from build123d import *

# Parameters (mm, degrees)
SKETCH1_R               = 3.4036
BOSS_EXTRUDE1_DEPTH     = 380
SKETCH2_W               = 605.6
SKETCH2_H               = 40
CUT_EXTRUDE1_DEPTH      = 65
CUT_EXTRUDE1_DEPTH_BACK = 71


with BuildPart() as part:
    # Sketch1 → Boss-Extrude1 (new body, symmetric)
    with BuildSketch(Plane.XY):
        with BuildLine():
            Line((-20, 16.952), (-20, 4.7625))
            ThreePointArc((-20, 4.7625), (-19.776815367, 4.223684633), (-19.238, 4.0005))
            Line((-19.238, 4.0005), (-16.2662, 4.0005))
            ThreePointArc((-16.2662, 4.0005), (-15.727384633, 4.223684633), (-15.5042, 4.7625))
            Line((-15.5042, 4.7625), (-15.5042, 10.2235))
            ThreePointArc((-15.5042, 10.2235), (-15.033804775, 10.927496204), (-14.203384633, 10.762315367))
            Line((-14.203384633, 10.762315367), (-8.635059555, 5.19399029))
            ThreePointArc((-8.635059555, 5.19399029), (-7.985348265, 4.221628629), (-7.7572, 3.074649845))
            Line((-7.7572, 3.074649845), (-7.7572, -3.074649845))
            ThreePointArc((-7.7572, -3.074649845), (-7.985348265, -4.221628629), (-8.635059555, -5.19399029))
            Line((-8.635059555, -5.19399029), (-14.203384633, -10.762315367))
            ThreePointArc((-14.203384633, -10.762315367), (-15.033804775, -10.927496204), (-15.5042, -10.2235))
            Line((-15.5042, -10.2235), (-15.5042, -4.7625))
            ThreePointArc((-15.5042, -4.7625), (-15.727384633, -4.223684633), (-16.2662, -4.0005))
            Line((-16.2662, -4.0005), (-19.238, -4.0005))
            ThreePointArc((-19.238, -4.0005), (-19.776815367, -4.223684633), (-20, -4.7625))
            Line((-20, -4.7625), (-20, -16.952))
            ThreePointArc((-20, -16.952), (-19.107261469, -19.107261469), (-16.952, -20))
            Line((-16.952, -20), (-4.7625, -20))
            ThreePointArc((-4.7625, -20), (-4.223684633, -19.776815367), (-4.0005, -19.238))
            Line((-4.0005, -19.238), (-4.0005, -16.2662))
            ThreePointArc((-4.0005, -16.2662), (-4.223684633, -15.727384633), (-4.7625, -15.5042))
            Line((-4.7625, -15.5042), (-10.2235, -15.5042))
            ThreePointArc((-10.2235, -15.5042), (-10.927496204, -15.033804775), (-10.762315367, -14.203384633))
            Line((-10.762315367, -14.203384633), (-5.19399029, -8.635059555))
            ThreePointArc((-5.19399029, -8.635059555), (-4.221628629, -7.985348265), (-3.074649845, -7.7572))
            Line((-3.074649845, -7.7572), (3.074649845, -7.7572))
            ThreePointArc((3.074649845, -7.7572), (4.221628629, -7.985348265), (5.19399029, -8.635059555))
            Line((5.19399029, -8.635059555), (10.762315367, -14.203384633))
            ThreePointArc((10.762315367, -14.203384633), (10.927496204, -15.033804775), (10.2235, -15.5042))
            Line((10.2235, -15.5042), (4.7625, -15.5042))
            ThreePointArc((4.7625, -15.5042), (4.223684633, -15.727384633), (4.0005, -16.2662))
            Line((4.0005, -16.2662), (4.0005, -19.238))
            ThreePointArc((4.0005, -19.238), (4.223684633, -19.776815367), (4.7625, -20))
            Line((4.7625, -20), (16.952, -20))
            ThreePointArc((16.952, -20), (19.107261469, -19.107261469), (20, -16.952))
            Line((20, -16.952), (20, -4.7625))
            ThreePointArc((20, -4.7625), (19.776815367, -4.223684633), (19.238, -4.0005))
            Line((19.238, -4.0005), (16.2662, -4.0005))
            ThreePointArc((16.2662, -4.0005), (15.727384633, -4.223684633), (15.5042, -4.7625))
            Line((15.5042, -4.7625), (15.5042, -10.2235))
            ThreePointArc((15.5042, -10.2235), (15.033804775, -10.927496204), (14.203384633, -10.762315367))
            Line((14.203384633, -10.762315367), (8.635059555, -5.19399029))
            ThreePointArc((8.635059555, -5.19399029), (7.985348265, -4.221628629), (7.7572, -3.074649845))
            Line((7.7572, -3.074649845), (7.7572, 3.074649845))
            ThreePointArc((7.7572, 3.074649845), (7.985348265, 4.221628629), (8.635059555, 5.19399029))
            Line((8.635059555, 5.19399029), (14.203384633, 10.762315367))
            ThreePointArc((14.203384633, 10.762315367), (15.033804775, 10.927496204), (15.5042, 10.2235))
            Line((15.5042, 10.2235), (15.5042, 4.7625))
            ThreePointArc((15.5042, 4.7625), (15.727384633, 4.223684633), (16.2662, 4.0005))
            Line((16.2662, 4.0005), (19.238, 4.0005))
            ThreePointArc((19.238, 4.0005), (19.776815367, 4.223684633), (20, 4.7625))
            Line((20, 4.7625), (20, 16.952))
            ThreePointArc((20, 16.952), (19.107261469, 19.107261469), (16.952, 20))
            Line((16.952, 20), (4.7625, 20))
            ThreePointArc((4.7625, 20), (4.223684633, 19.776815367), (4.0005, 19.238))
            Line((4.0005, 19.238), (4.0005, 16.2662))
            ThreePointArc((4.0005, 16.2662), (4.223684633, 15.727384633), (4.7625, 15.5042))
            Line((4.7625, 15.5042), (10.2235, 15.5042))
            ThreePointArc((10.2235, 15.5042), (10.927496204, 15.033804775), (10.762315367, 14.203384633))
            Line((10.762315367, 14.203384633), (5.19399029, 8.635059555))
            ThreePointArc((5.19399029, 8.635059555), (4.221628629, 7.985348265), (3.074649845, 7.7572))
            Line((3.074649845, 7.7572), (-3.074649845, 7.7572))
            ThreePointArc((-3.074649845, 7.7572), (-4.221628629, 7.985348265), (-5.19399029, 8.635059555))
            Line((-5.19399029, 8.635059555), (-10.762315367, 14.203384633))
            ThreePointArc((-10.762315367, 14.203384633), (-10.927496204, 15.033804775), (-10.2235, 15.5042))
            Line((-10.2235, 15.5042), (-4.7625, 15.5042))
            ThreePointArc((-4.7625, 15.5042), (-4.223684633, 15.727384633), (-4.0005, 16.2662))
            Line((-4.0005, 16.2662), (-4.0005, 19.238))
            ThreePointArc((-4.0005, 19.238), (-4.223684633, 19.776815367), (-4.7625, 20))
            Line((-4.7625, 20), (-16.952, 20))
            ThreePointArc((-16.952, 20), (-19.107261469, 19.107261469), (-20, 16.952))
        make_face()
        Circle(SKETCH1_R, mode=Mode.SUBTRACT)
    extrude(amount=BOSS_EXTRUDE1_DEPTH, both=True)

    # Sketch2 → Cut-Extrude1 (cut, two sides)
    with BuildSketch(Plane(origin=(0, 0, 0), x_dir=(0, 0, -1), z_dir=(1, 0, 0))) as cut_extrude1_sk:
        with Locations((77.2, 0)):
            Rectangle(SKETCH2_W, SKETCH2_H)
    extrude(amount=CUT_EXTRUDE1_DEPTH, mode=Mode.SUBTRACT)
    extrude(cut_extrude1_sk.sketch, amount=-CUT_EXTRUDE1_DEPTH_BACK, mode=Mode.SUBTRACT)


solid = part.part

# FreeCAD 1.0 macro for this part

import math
import FreeCAD as App
import Part
import Sketcher
Q = App.Units.Quantity

doc = App.newDocument("Part")
body = doc.addObject("PartDesign::Body", "Body")

# Sketch on XY plane
sketch1 = body.newObject("Sketcher::SketchObject", "Sketch")
sketch1.AttachmentSupport = (doc.getObject("XY_Plane"), [""])
sketch1.MapMode = "FlatFace"
sketch1.addGeometry([
    Part.LineSegment(App.Vector(-20, 17, 0), App.Vector(-20, 4.8, 0)),  # 0
    Part.ArcOfCircle(Part.Circle(App.Vector(-19.2, 4.8, 0), App.Vector(0, 0, 1), 0.8), math.radians(-180), math.radians(-90)),  # 1
    Part.LineSegment(App.Vector(-19.2, 4, 0), App.Vector(-16.3, 4, 0)),  # 2
    Part.ArcOfCircle(Part.Circle(App.Vector(-16.3, 4.8, 0), App.Vector(0, 0, 1), 0.8), math.radians(-90), math.radians(0)),  # 3
    Part.LineSegment(App.Vector(-15.5, 4.8, 0), App.Vector(-15.5, 10.2, 0)),  # 4
    Part.ArcOfCircle(Part.Circle(App.Vector(-14.7, 10.2, 0), App.Vector(0, 0, 1), 0.8), math.radians(45), math.radians(180)),  # 5
    Part.LineSegment(App.Vector(-14.2, 10.8, 0), App.Vector(-8.6, 5.2, 0)),  # 6
    Part.ArcOfCircle(Part.Circle(App.Vector(-10.8, 3.1, 0), App.Vector(0, 0, 1), 3), math.radians(0), math.radians(45)),  # 7
    Part.LineSegment(App.Vector(-7.8, 3.1, 0), App.Vector(-7.8, -3.1, 0)),  # 8
    Part.ArcOfCircle(Part.Circle(App.Vector(-10.8, -3.1, 0), App.Vector(0, 0, 1), 3), math.radians(-45), math.radians(0)),  # 9
    Part.LineSegment(App.Vector(-8.6, -5.2, 0), App.Vector(-14.2, -10.8, 0)),  # 10
    Part.ArcOfCircle(Part.Circle(App.Vector(-14.7, -10.2, 0), App.Vector(0, 0, 1), 0.8), math.radians(180), math.radians(315)),  # 11
    Part.LineSegment(App.Vector(-15.5, -10.2, 0), App.Vector(-15.5, -4.8, 0)),  # 12
    Part.ArcOfCircle(Part.Circle(App.Vector(-16.3, -4.8, 0), App.Vector(0, 0, 1), 0.8), math.radians(0), math.radians(90)),  # 13
    Part.LineSegment(App.Vector(-16.3, -4, 0), App.Vector(-19.2, -4, 0)),  # 14
    Part.ArcOfCircle(Part.Circle(App.Vector(-19.2, -4.8, 0), App.Vector(0, 0, 1), 0.8), math.radians(90), math.radians(180)),  # 15
    Part.LineSegment(App.Vector(-20, -4.8, 0), App.Vector(-20, -17, 0)),  # 16
    Part.ArcOfCircle(Part.Circle(App.Vector(-17, -17, 0), App.Vector(0, 0, 1), 3), math.radians(180), math.radians(270)),  # 17
    Part.LineSegment(App.Vector(-17, -20, 0), App.Vector(-4.8, -20, 0)),  # 18
    Part.ArcOfCircle(Part.Circle(App.Vector(-4.8, -19.2, 0), App.Vector(0, 0, 1), 0.8), math.radians(-90), math.radians(0)),  # 19
    Part.LineSegment(App.Vector(-4, -19.2, 0), App.Vector(-4, -16.3, 0)),  # 20
    Part.ArcOfCircle(Part.Circle(App.Vector(-4.8, -16.3, 0), App.Vector(0, 0, 1), 0.8), math.radians(0), math.radians(90)),  # 21
    Part.LineSegment(App.Vector(-4.8, -15.5, 0), App.Vector(-10.2, -15.5, 0)),  # 22
    Part.ArcOfCircle(Part.Circle(App.Vector(-10.2, -14.7, 0), App.Vector(0, 0, 1), 0.8), math.radians(135), math.radians(270)),  # 23
    Part.LineSegment(App.Vector(-10.8, -14.2, 0), App.Vector(-5.2, -8.6, 0)),  # 24
    Part.ArcOfCircle(Part.Circle(App.Vector(-3.1, -10.8, 0), App.Vector(0, 0, 1), 3), math.radians(90), math.radians(135)),  # 25
    Part.LineSegment(App.Vector(-3.1, -7.8, 0), App.Vector(3.1, -7.8, 0)),  # 26
    Part.ArcOfCircle(Part.Circle(App.Vector(3.1, -10.8, 0), App.Vector(0, 0, 1), 3), math.radians(45), math.radians(90)),  # 27
    Part.LineSegment(App.Vector(5.2, -8.6, 0), App.Vector(10.8, -14.2, 0)),  # 28
    Part.ArcOfCircle(Part.Circle(App.Vector(10.2, -14.7, 0), App.Vector(0, 0, 1), 0.8), math.radians(-90), math.radians(45)),  # 29
    Part.LineSegment(App.Vector(10.2, -15.5, 0), App.Vector(4.8, -15.5, 0)),  # 30
    Part.ArcOfCircle(Part.Circle(App.Vector(4.8, -16.3, 0), App.Vector(0, 0, 1), 0.8), math.radians(90), math.radians(180)),  # 31
    Part.LineSegment(App.Vector(4, -16.3, 0), App.Vector(4, -19.2, 0)),  # 32
    Part.ArcOfCircle(Part.Circle(App.Vector(4.8, -19.2, 0), App.Vector(0, 0, 1), 0.8), math.radians(-180), math.radians(-90)),  # 33
    Part.LineSegment(App.Vector(4.8, -20, 0), App.Vector(17, -20, 0)),  # 34
    Part.ArcOfCircle(Part.Circle(App.Vector(17, -17, 0), App.Vector(0, 0, 1), 3), math.radians(-90), math.radians(0)),  # 35
    Part.LineSegment(App.Vector(20, -17, 0), App.Vector(20, -4.8, 0)),  # 36
    Part.ArcOfCircle(Part.Circle(App.Vector(19.2, -4.8, 0), App.Vector(0, 0, 1), 0.8), math.radians(0), math.radians(90)),  # 37
    Part.LineSegment(App.Vector(19.2, -4, 0), App.Vector(16.3, -4, 0)),  # 38
    Part.ArcOfCircle(Part.Circle(App.Vector(16.3, -4.8, 0), App.Vector(0, 0, 1), 0.8), math.radians(90), math.radians(180)),  # 39
    Part.LineSegment(App.Vector(15.5, -4.8, 0), App.Vector(15.5, -10.2, 0)),  # 40
    Part.ArcOfCircle(Part.Circle(App.Vector(14.7, -10.2, 0), App.Vector(0, 0, 1), 0.8), math.radians(-135), math.radians(0)),  # 41
    Part.LineSegment(App.Vector(14.2, -10.8, 0), App.Vector(8.6, -5.2, 0)),  # 42
    Part.ArcOfCircle(Part.Circle(App.Vector(10.8, -3.1, 0), App.Vector(0, 0, 1), 3), math.radians(180), math.radians(225)),  # 43
    Part.LineSegment(App.Vector(7.8, -3.1, 0), App.Vector(7.8, 3.1, 0)),  # 44
    Part.ArcOfCircle(Part.Circle(App.Vector(10.8, 3.1, 0), App.Vector(0, 0, 1), 3), math.radians(135), math.radians(180)),  # 45
    Part.LineSegment(App.Vector(8.6, 5.2, 0), App.Vector(14.2, 10.8, 0)),  # 46
    Part.ArcOfCircle(Part.Circle(App.Vector(14.7, 10.2, 0), App.Vector(0, 0, 1), 0.8), math.radians(0), math.radians(135)),  # 47
    Part.LineSegment(App.Vector(15.5, 10.2, 0), App.Vector(15.5, 4.8, 0)),  # 48
    Part.ArcOfCircle(Part.Circle(App.Vector(16.3, 4.8, 0), App.Vector(0, 0, 1), 0.8), math.radians(-180), math.radians(-90)),  # 49
    Part.LineSegment(App.Vector(16.3, 4, 0), App.Vector(19.2, 4, 0)),  # 50
    Part.ArcOfCircle(Part.Circle(App.Vector(19.2, 4.8, 0), App.Vector(0, 0, 1), 0.8), math.radians(-90), math.radians(0)),  # 51
    Part.LineSegment(App.Vector(20, 4.8, 0), App.Vector(20, 17, 0)),  # 52
    Part.ArcOfCircle(Part.Circle(App.Vector(17, 17, 0), App.Vector(0, 0, 1), 3), math.radians(0), math.radians(90)),  # 53
    Part.LineSegment(App.Vector(17, 20, 0), App.Vector(4.8, 20, 0)),  # 54
    Part.ArcOfCircle(Part.Circle(App.Vector(4.8, 19.2, 0), App.Vector(0, 0, 1), 0.8), math.radians(90), math.radians(180)),  # 55
    Part.LineSegment(App.Vector(4, 19.2, 0), App.Vector(4, 16.3, 0)),  # 56
    Part.ArcOfCircle(Part.Circle(App.Vector(4.8, 16.3, 0), App.Vector(0, 0, 1), 0.8), math.radians(-180), math.radians(-90)),  # 57
    Part.LineSegment(App.Vector(4.8, 15.5, 0), App.Vector(10.2, 15.5, 0)),  # 58
    Part.ArcOfCircle(Part.Circle(App.Vector(10.2, 14.7, 0), App.Vector(0, 0, 1), 0.8), math.radians(-45), math.radians(90)),  # 59
    Part.LineSegment(App.Vector(10.8, 14.2, 0), App.Vector(5.2, 8.6, 0)),  # 60
    Part.ArcOfCircle(Part.Circle(App.Vector(3.1, 10.8, 0), App.Vector(0, 0, 1), 3), math.radians(-90), math.radians(-45)),  # 61
    Part.LineSegment(App.Vector(3.1, 7.8, 0), App.Vector(-3.1, 7.8, 0)),  # 62
    Part.ArcOfCircle(Part.Circle(App.Vector(-3.1, 10.8, 0), App.Vector(0, 0, 1), 3), math.radians(-135), math.radians(-90)),  # 63
    Part.LineSegment(App.Vector(-5.2, 8.6, 0), App.Vector(-10.8, 14.2, 0)),  # 64
    Part.ArcOfCircle(Part.Circle(App.Vector(-10.2, 14.7, 0), App.Vector(0, 0, 1), 0.8), math.radians(90), math.radians(225)),  # 65
    Part.LineSegment(App.Vector(-10.2, 15.5, 0), App.Vector(-4.8, 15.5, 0)),  # 66
    Part.ArcOfCircle(Part.Circle(App.Vector(-4.8, 16.3, 0), App.Vector(0, 0, 1), 0.8), math.radians(-90), math.radians(0)),  # 67
    Part.LineSegment(App.Vector(-4, 16.3, 0), App.Vector(-4, 19.2, 0)),  # 68
    Part.ArcOfCircle(Part.Circle(App.Vector(-4.8, 19.2, 0), App.Vector(0, 0, 1), 0.8), math.radians(0), math.radians(90)),  # 69
    Part.LineSegment(App.Vector(-4.8, 20, 0), App.Vector(-17, 20, 0)),  # 70
    Part.ArcOfCircle(Part.Circle(App.Vector(-17, 17, 0), App.Vector(0, 0, 1), 3), math.radians(90), math.radians(180)),  # 71
    Part.Circle(App.Vector(0, 0, 0), App.Vector(0, 0, 1), 3.4),  # 72
], False)
sketch1.addConstraint([
    Sketcher.Constraint("Tangent", 0, 2, 1, 1),
    Sketcher.Constraint("Tangent", 1, 2, 2, 1),
    Sketcher.Constraint("Tangent", 2, 2, 3, 1),
    Sketcher.Constraint("Tangent", 3, 2, 4, 1),
    Sketcher.Constraint("Tangent", 4, 2, 5, 2),
    Sketcher.Constraint("Tangent", 5, 1, 6, 1),
    Sketcher.Constraint("Tangent", 6, 2, 7, 2),
    Sketcher.Constraint("Tangent", 7, 1, 8, 1),
    Sketcher.Constraint("Tangent", 8, 2, 9, 2),
    Sketcher.Constraint("Tangent", 9, 1, 10, 1),
    Sketcher.Constraint("Tangent", 10, 2, 11, 2),
    Sketcher.Constraint("Tangent", 11, 1, 12, 1),
    Sketcher.Constraint("Tangent", 12, 2, 13, 1),
    Sketcher.Constraint("Tangent", 13, 2, 14, 1),
    Sketcher.Constraint("Tangent", 14, 2, 15, 1),
    Sketcher.Constraint("Tangent", 15, 2, 16, 1),
    Sketcher.Constraint("Tangent", 16, 2, 17, 1),
    Sketcher.Constraint("Tangent", 17, 2, 18, 1),
    Sketcher.Constraint("Tangent", 18, 2, 19, 1),
    Sketcher.Constraint("Tangent", 19, 2, 20, 1),
    Sketcher.Constraint("Tangent", 20, 2, 21, 1),
    Sketcher.Constraint("Tangent", 21, 2, 22, 1),
    Sketcher.Constraint("Tangent", 22, 2, 23, 2),
    Sketcher.Constraint("Tangent", 23, 1, 24, 1),
    Sketcher.Constraint("Tangent", 24, 2, 25, 2),
    Sketcher.Constraint("Tangent", 25, 1, 26, 1),
    Sketcher.Constraint("Tangent", 26, 2, 27, 2),
    Sketcher.Constraint("Tangent", 27, 1, 28, 1),
    Sketcher.Constraint("Tangent", 28, 2, 29, 2),
    Sketcher.Constraint("Tangent", 29, 1, 30, 1),
    Sketcher.Constraint("Tangent", 30, 2, 31, 1),
    Sketcher.Constraint("Tangent", 31, 2, 32, 1),
    Sketcher.Constraint("Tangent", 32, 2, 33, 1),
    Sketcher.Constraint("Tangent", 33, 2, 34, 1),
    Sketcher.Constraint("Tangent", 34, 2, 35, 1),
    Sketcher.Constraint("Tangent", 35, 2, 36, 1),
    Sketcher.Constraint("Tangent", 36, 2, 37, 1),
    Sketcher.Constraint("Tangent", 37, 2, 38, 1),
    Sketcher.Constraint("Tangent", 38, 2, 39, 1),
    Sketcher.Constraint("Tangent", 39, 2, 40, 1),
    Sketcher.Constraint("Tangent", 40, 2, 41, 2),
    Sketcher.Constraint("Tangent", 41, 1, 42, 1),
    Sketcher.Constraint("Tangent", 42, 2, 43, 2),
    Sketcher.Constraint("Tangent", 43, 1, 44, 1),
    Sketcher.Constraint("Tangent", 44, 2, 45, 2),
    Sketcher.Constraint("Tangent", 45, 1, 46, 1),
    Sketcher.Constraint("Tangent", 46, 2, 47, 2),
    Sketcher.Constraint("Tangent", 47, 1, 48, 1),
    Sketcher.Constraint("Tangent", 48, 2, 49, 1),
    Sketcher.Constraint("Tangent", 49, 2, 50, 1),
    Sketcher.Constraint("Tangent", 50, 2, 51, 1),
    Sketcher.Constraint("Tangent", 51, 2, 52, 1),
    Sketcher.Constraint("Tangent", 52, 2, 53, 1),
    Sketcher.Constraint("Tangent", 53, 2, 54, 1),
    Sketcher.Constraint("Tangent", 54, 2, 55, 1),
    Sketcher.Constraint("Tangent", 55, 2, 56, 1),
    Sketcher.Constraint("Tangent", 56, 2, 57, 1),
    Sketcher.Constraint("Tangent", 57, 2, 58, 1),
    Sketcher.Constraint("Tangent", 58, 2, 59, 2),
    Sketcher.Constraint("Tangent", 59, 1, 60, 1),
    Sketcher.Constraint("Tangent", 60, 2, 61, 2),
    Sketcher.Constraint("Tangent", 61, 1, 62, 1),
    Sketcher.Constraint("Tangent", 62, 2, 63, 2),
    Sketcher.Constraint("Tangent", 63, 1, 64, 1),
    Sketcher.Constraint("Tangent", 64, 2, 65, 2),
    Sketcher.Constraint("Tangent", 65, 1, 66, 1),
    Sketcher.Constraint("Tangent", 66, 2, 67, 1),
    Sketcher.Constraint("Tangent", 67, 2, 68, 1),
    Sketcher.Constraint("Tangent", 68, 2, 69, 1),
    Sketcher.Constraint("Tangent", 69, 2, 70, 1),
    Sketcher.Constraint("Tangent", 70, 2, 71, 1),
    Sketcher.Constraint("Tangent", 71, 2, 0, 1),
    Sketcher.Constraint("Vertical", 0),
    Sketcher.Constraint("Horizontal", 2),
    Sketcher.Constraint("Vertical", 4),
    Sketcher.Constraint("Vertical", 8),
    Sketcher.Constraint("Vertical", 12),
    Sketcher.Constraint("Horizontal", 14),
    Sketcher.Constraint("Vertical", 16),
    Sketcher.Constraint("Horizontal", 18),
    Sketcher.Constraint("Vertical", 20),
    Sketcher.Constraint("Horizontal", 22),
    Sketcher.Constraint("Horizontal", 26),
    Sketcher.Constraint("Horizontal", 30),
    Sketcher.Constraint("Vertical", 32),
    Sketcher.Constraint("Horizontal", 34),
    Sketcher.Constraint("Vertical", 36),
    Sketcher.Constraint("Horizontal", 38),
    Sketcher.Constraint("Vertical", 40),
    Sketcher.Constraint("Vertical", 44),
    Sketcher.Constraint("Vertical", 48),
    Sketcher.Constraint("Horizontal", 50),
    Sketcher.Constraint("Vertical", 52),
    Sketcher.Constraint("Horizontal", 54),
    Sketcher.Constraint("Vertical", 56),
    Sketcher.Constraint("Horizontal", 58),
    Sketcher.Constraint("Horizontal", 62),
    Sketcher.Constraint("Horizontal", 66),
    Sketcher.Constraint("Vertical", 68),
    Sketcher.Constraint("Horizontal", 70),
    Sketcher.Constraint("Coincident", 72, 3, -1, 1),
    Sketcher.Constraint("Equal", 1, 3),
    Sketcher.Constraint("Equal", 3, 5),
    Sketcher.Constraint("Equal", 7, 9),
    Sketcher.Constraint("Equal", 5, 11),
    Sketcher.Constraint("Equal", 11, 13),
    Sketcher.Constraint("Equal", 13, 15),
    Sketcher.Constraint("Equal", 15, 19),
    Sketcher.Constraint("Equal", 19, 21),
    Sketcher.Constraint("Equal", 21, 23),
    Sketcher.Constraint("Equal", 9, 25),
    Sketcher.Constraint("Equal", 25, 27),
    Sketcher.Constraint("Equal", 23, 29),
    Sketcher.Constraint("Equal", 29, 31),
    Sketcher.Constraint("Equal", 31, 33),
    Sketcher.Constraint("Equal", 17, 35),
    Sketcher.Constraint("Equal", 33, 37),
    Sketcher.Constraint("Equal", 37, 39),
    Sketcher.Constraint("Equal", 39, 41),
    Sketcher.Constraint("Equal", 27, 43),
    Sketcher.Constraint("Equal", 43, 45),
    Sketcher.Constraint("Equal", 41, 47),
    Sketcher.Constraint("Equal", 47, 49),
    Sketcher.Constraint("Equal", 49, 51),
    Sketcher.Constraint("Equal", 35, 53),
    Sketcher.Constraint("Equal", 51, 55),
    Sketcher.Constraint("Equal", 55, 57),
    Sketcher.Constraint("Equal", 57, 59),
    Sketcher.Constraint("Equal", 45, 61),
    Sketcher.Constraint("Equal", 61, 63),
    Sketcher.Constraint("Equal", 59, 65),
    Sketcher.Constraint("Equal", 65, 67),
    Sketcher.Constraint("Equal", 67, 69),
    Sketcher.Constraint("Equal", 53, 71),
    Sketcher.Constraint("Symmetric", 1, 3, 37, 3, -1, 1),
    Sketcher.Constraint("Symmetric", 5, 3, 41, 3, -1, 1),
    Sketcher.Constraint("Symmetric", 7, 3, 43, 3, -1, 1),
    Sketcher.Constraint("Symmetric", 11, 3, 47, 3, -1, 1),
    Sketcher.Constraint("Symmetric", 15, 3, 51, 3, -1, 1),
    Sketcher.Constraint("Symmetric", 19, 3, 55, 3, -1, 1),
    Sketcher.Constraint("Symmetric", 23, 3, 59, 3, -1, 1),
    Sketcher.Constraint("Symmetric", 25, 3, 61, 3, -1, 1),
    Sketcher.Constraint("Symmetric", 29, 3, 65, 3, -1, 1),
    Sketcher.Constraint("Symmetric", 33, 3, 69, 3, -1, 1),
    Sketcher.Constraint("Symmetric", 23, 3, 29, 3, -2),
    Sketcher.Constraint("Symmetric", 19, 3, 33, 3, -2),
    Sketcher.Constraint("Symmetric", 15, 3, 37, 3, -2),
    Sketcher.Constraint("Symmetric", 11, 3, 41, 3, -2),
    Sketcher.Constraint("Perpendicular", 6, 10),
    Sketcher.Constraint("Parallel", 10, 24),
    Sketcher.Constraint("Perpendicular", 24, 28),
    Sketcher.Constraint("Perpendicular", 42, 46),
    Sketcher.Constraint("Perpendicular", 60, 64),
    Sketcher.Constraint("Horizontal", 9, 3, 43, 3),
    Sketcher.Constraint("Equal", 70, 0),
    Sketcher.Constraint("Equal", 66, 4),
    Sketcher.Constraint("Equal", 62, 8),
    Sketcher.Constraint("Equal", 50, 20),
    Sketcher.Constraint("Equal", 10, 24),
    Sketcher.Constraint("Radius", 1, Q("0.03 in")),
    Sketcher.Constraint("Radius", 17, Q("0.12 in")),
    Sketcher.Constraint("Diameter", 72, Q("0.268 in")),
    Sketcher.Constraint("Radius", 7, Q("0.118 in")),
    Sketcher.Constraint("DistanceX", 2, 1, 2, 2, Q("0.117 in")),
    Sketcher.Constraint("DistanceX", 22, 2, 22, 1, Q("0.215 in")),
    Sketcher.Constraint("DistanceY", -1, 1, 1, 3, Q("0.1875 in")),
    Sketcher.Constraint("DistanceX", 18, 1, 18, 2, Q("12.1895 mm")),
    Sketcher.Constraint("DistanceX", 26, 1, 26, 2, Q("6.1493 mm")),
])
pad1 = body.newObject("PartDesign::Pad", "Pad")
pad1.Profile = sketch1
pad1.Length = 760
pad1.Midplane = True

# Sketch on YZ plane
sketch2 = body.newObject("Sketcher::SketchObject", "Sketch001")
sketch2.AttachmentSupport = (doc.getObject("YZ_Plane"), [""])
sketch2.MapMode = "FlatFace"
sketch2.addGeometry([
    Part.LineSegment(App.Vector(20, 226, 0), App.Vector(-20, 226, 0)),
    Part.LineSegment(App.Vector(-20, 226, 0), App.Vector(-20, -380, 0)),
    Part.LineSegment(App.Vector(-20, -380, 0), App.Vector(20, -380, 0)),
    Part.LineSegment(App.Vector(20, -380, 0), App.Vector(20, 226, 0)),
], False)
sketch2.addConstraint([
    Sketcher.Constraint("Coincident", 0, 2, 1, 1),
    Sketcher.Constraint("Coincident", 1, 2, 2, 1),
    Sketcher.Constraint("Coincident", 2, 2, 3, 1),
    Sketcher.Constraint("Coincident", 3, 2, 0, 1),
    Sketcher.Constraint("Horizontal", 0),
    Sketcher.Constraint("Vertical", 1),
    Sketcher.Constraint("Horizontal", 2),
    Sketcher.Constraint("Vertical", 3),
    Sketcher.Constraint("DistanceX", 0, 2, 0, 1, Q("40 mm")),
    Sketcher.Constraint("DistanceY", 1, 2, 1, 1, Q("605.6 mm")),
    Sketcher.Constraint("DistanceX", 0, 2, -1, 1, Q("20 mm")),
    Sketcher.Constraint("DistanceY", -1, 1, 0, 2, Q("225.6 mm")),
])
pocket1 = body.newObject("PartDesign::Pocket", "Pocket")
pocket1.Profile = sketch2
pocket1.Type = "ThroughAll"
pocket1.Midplane = True

doc.recompute()
